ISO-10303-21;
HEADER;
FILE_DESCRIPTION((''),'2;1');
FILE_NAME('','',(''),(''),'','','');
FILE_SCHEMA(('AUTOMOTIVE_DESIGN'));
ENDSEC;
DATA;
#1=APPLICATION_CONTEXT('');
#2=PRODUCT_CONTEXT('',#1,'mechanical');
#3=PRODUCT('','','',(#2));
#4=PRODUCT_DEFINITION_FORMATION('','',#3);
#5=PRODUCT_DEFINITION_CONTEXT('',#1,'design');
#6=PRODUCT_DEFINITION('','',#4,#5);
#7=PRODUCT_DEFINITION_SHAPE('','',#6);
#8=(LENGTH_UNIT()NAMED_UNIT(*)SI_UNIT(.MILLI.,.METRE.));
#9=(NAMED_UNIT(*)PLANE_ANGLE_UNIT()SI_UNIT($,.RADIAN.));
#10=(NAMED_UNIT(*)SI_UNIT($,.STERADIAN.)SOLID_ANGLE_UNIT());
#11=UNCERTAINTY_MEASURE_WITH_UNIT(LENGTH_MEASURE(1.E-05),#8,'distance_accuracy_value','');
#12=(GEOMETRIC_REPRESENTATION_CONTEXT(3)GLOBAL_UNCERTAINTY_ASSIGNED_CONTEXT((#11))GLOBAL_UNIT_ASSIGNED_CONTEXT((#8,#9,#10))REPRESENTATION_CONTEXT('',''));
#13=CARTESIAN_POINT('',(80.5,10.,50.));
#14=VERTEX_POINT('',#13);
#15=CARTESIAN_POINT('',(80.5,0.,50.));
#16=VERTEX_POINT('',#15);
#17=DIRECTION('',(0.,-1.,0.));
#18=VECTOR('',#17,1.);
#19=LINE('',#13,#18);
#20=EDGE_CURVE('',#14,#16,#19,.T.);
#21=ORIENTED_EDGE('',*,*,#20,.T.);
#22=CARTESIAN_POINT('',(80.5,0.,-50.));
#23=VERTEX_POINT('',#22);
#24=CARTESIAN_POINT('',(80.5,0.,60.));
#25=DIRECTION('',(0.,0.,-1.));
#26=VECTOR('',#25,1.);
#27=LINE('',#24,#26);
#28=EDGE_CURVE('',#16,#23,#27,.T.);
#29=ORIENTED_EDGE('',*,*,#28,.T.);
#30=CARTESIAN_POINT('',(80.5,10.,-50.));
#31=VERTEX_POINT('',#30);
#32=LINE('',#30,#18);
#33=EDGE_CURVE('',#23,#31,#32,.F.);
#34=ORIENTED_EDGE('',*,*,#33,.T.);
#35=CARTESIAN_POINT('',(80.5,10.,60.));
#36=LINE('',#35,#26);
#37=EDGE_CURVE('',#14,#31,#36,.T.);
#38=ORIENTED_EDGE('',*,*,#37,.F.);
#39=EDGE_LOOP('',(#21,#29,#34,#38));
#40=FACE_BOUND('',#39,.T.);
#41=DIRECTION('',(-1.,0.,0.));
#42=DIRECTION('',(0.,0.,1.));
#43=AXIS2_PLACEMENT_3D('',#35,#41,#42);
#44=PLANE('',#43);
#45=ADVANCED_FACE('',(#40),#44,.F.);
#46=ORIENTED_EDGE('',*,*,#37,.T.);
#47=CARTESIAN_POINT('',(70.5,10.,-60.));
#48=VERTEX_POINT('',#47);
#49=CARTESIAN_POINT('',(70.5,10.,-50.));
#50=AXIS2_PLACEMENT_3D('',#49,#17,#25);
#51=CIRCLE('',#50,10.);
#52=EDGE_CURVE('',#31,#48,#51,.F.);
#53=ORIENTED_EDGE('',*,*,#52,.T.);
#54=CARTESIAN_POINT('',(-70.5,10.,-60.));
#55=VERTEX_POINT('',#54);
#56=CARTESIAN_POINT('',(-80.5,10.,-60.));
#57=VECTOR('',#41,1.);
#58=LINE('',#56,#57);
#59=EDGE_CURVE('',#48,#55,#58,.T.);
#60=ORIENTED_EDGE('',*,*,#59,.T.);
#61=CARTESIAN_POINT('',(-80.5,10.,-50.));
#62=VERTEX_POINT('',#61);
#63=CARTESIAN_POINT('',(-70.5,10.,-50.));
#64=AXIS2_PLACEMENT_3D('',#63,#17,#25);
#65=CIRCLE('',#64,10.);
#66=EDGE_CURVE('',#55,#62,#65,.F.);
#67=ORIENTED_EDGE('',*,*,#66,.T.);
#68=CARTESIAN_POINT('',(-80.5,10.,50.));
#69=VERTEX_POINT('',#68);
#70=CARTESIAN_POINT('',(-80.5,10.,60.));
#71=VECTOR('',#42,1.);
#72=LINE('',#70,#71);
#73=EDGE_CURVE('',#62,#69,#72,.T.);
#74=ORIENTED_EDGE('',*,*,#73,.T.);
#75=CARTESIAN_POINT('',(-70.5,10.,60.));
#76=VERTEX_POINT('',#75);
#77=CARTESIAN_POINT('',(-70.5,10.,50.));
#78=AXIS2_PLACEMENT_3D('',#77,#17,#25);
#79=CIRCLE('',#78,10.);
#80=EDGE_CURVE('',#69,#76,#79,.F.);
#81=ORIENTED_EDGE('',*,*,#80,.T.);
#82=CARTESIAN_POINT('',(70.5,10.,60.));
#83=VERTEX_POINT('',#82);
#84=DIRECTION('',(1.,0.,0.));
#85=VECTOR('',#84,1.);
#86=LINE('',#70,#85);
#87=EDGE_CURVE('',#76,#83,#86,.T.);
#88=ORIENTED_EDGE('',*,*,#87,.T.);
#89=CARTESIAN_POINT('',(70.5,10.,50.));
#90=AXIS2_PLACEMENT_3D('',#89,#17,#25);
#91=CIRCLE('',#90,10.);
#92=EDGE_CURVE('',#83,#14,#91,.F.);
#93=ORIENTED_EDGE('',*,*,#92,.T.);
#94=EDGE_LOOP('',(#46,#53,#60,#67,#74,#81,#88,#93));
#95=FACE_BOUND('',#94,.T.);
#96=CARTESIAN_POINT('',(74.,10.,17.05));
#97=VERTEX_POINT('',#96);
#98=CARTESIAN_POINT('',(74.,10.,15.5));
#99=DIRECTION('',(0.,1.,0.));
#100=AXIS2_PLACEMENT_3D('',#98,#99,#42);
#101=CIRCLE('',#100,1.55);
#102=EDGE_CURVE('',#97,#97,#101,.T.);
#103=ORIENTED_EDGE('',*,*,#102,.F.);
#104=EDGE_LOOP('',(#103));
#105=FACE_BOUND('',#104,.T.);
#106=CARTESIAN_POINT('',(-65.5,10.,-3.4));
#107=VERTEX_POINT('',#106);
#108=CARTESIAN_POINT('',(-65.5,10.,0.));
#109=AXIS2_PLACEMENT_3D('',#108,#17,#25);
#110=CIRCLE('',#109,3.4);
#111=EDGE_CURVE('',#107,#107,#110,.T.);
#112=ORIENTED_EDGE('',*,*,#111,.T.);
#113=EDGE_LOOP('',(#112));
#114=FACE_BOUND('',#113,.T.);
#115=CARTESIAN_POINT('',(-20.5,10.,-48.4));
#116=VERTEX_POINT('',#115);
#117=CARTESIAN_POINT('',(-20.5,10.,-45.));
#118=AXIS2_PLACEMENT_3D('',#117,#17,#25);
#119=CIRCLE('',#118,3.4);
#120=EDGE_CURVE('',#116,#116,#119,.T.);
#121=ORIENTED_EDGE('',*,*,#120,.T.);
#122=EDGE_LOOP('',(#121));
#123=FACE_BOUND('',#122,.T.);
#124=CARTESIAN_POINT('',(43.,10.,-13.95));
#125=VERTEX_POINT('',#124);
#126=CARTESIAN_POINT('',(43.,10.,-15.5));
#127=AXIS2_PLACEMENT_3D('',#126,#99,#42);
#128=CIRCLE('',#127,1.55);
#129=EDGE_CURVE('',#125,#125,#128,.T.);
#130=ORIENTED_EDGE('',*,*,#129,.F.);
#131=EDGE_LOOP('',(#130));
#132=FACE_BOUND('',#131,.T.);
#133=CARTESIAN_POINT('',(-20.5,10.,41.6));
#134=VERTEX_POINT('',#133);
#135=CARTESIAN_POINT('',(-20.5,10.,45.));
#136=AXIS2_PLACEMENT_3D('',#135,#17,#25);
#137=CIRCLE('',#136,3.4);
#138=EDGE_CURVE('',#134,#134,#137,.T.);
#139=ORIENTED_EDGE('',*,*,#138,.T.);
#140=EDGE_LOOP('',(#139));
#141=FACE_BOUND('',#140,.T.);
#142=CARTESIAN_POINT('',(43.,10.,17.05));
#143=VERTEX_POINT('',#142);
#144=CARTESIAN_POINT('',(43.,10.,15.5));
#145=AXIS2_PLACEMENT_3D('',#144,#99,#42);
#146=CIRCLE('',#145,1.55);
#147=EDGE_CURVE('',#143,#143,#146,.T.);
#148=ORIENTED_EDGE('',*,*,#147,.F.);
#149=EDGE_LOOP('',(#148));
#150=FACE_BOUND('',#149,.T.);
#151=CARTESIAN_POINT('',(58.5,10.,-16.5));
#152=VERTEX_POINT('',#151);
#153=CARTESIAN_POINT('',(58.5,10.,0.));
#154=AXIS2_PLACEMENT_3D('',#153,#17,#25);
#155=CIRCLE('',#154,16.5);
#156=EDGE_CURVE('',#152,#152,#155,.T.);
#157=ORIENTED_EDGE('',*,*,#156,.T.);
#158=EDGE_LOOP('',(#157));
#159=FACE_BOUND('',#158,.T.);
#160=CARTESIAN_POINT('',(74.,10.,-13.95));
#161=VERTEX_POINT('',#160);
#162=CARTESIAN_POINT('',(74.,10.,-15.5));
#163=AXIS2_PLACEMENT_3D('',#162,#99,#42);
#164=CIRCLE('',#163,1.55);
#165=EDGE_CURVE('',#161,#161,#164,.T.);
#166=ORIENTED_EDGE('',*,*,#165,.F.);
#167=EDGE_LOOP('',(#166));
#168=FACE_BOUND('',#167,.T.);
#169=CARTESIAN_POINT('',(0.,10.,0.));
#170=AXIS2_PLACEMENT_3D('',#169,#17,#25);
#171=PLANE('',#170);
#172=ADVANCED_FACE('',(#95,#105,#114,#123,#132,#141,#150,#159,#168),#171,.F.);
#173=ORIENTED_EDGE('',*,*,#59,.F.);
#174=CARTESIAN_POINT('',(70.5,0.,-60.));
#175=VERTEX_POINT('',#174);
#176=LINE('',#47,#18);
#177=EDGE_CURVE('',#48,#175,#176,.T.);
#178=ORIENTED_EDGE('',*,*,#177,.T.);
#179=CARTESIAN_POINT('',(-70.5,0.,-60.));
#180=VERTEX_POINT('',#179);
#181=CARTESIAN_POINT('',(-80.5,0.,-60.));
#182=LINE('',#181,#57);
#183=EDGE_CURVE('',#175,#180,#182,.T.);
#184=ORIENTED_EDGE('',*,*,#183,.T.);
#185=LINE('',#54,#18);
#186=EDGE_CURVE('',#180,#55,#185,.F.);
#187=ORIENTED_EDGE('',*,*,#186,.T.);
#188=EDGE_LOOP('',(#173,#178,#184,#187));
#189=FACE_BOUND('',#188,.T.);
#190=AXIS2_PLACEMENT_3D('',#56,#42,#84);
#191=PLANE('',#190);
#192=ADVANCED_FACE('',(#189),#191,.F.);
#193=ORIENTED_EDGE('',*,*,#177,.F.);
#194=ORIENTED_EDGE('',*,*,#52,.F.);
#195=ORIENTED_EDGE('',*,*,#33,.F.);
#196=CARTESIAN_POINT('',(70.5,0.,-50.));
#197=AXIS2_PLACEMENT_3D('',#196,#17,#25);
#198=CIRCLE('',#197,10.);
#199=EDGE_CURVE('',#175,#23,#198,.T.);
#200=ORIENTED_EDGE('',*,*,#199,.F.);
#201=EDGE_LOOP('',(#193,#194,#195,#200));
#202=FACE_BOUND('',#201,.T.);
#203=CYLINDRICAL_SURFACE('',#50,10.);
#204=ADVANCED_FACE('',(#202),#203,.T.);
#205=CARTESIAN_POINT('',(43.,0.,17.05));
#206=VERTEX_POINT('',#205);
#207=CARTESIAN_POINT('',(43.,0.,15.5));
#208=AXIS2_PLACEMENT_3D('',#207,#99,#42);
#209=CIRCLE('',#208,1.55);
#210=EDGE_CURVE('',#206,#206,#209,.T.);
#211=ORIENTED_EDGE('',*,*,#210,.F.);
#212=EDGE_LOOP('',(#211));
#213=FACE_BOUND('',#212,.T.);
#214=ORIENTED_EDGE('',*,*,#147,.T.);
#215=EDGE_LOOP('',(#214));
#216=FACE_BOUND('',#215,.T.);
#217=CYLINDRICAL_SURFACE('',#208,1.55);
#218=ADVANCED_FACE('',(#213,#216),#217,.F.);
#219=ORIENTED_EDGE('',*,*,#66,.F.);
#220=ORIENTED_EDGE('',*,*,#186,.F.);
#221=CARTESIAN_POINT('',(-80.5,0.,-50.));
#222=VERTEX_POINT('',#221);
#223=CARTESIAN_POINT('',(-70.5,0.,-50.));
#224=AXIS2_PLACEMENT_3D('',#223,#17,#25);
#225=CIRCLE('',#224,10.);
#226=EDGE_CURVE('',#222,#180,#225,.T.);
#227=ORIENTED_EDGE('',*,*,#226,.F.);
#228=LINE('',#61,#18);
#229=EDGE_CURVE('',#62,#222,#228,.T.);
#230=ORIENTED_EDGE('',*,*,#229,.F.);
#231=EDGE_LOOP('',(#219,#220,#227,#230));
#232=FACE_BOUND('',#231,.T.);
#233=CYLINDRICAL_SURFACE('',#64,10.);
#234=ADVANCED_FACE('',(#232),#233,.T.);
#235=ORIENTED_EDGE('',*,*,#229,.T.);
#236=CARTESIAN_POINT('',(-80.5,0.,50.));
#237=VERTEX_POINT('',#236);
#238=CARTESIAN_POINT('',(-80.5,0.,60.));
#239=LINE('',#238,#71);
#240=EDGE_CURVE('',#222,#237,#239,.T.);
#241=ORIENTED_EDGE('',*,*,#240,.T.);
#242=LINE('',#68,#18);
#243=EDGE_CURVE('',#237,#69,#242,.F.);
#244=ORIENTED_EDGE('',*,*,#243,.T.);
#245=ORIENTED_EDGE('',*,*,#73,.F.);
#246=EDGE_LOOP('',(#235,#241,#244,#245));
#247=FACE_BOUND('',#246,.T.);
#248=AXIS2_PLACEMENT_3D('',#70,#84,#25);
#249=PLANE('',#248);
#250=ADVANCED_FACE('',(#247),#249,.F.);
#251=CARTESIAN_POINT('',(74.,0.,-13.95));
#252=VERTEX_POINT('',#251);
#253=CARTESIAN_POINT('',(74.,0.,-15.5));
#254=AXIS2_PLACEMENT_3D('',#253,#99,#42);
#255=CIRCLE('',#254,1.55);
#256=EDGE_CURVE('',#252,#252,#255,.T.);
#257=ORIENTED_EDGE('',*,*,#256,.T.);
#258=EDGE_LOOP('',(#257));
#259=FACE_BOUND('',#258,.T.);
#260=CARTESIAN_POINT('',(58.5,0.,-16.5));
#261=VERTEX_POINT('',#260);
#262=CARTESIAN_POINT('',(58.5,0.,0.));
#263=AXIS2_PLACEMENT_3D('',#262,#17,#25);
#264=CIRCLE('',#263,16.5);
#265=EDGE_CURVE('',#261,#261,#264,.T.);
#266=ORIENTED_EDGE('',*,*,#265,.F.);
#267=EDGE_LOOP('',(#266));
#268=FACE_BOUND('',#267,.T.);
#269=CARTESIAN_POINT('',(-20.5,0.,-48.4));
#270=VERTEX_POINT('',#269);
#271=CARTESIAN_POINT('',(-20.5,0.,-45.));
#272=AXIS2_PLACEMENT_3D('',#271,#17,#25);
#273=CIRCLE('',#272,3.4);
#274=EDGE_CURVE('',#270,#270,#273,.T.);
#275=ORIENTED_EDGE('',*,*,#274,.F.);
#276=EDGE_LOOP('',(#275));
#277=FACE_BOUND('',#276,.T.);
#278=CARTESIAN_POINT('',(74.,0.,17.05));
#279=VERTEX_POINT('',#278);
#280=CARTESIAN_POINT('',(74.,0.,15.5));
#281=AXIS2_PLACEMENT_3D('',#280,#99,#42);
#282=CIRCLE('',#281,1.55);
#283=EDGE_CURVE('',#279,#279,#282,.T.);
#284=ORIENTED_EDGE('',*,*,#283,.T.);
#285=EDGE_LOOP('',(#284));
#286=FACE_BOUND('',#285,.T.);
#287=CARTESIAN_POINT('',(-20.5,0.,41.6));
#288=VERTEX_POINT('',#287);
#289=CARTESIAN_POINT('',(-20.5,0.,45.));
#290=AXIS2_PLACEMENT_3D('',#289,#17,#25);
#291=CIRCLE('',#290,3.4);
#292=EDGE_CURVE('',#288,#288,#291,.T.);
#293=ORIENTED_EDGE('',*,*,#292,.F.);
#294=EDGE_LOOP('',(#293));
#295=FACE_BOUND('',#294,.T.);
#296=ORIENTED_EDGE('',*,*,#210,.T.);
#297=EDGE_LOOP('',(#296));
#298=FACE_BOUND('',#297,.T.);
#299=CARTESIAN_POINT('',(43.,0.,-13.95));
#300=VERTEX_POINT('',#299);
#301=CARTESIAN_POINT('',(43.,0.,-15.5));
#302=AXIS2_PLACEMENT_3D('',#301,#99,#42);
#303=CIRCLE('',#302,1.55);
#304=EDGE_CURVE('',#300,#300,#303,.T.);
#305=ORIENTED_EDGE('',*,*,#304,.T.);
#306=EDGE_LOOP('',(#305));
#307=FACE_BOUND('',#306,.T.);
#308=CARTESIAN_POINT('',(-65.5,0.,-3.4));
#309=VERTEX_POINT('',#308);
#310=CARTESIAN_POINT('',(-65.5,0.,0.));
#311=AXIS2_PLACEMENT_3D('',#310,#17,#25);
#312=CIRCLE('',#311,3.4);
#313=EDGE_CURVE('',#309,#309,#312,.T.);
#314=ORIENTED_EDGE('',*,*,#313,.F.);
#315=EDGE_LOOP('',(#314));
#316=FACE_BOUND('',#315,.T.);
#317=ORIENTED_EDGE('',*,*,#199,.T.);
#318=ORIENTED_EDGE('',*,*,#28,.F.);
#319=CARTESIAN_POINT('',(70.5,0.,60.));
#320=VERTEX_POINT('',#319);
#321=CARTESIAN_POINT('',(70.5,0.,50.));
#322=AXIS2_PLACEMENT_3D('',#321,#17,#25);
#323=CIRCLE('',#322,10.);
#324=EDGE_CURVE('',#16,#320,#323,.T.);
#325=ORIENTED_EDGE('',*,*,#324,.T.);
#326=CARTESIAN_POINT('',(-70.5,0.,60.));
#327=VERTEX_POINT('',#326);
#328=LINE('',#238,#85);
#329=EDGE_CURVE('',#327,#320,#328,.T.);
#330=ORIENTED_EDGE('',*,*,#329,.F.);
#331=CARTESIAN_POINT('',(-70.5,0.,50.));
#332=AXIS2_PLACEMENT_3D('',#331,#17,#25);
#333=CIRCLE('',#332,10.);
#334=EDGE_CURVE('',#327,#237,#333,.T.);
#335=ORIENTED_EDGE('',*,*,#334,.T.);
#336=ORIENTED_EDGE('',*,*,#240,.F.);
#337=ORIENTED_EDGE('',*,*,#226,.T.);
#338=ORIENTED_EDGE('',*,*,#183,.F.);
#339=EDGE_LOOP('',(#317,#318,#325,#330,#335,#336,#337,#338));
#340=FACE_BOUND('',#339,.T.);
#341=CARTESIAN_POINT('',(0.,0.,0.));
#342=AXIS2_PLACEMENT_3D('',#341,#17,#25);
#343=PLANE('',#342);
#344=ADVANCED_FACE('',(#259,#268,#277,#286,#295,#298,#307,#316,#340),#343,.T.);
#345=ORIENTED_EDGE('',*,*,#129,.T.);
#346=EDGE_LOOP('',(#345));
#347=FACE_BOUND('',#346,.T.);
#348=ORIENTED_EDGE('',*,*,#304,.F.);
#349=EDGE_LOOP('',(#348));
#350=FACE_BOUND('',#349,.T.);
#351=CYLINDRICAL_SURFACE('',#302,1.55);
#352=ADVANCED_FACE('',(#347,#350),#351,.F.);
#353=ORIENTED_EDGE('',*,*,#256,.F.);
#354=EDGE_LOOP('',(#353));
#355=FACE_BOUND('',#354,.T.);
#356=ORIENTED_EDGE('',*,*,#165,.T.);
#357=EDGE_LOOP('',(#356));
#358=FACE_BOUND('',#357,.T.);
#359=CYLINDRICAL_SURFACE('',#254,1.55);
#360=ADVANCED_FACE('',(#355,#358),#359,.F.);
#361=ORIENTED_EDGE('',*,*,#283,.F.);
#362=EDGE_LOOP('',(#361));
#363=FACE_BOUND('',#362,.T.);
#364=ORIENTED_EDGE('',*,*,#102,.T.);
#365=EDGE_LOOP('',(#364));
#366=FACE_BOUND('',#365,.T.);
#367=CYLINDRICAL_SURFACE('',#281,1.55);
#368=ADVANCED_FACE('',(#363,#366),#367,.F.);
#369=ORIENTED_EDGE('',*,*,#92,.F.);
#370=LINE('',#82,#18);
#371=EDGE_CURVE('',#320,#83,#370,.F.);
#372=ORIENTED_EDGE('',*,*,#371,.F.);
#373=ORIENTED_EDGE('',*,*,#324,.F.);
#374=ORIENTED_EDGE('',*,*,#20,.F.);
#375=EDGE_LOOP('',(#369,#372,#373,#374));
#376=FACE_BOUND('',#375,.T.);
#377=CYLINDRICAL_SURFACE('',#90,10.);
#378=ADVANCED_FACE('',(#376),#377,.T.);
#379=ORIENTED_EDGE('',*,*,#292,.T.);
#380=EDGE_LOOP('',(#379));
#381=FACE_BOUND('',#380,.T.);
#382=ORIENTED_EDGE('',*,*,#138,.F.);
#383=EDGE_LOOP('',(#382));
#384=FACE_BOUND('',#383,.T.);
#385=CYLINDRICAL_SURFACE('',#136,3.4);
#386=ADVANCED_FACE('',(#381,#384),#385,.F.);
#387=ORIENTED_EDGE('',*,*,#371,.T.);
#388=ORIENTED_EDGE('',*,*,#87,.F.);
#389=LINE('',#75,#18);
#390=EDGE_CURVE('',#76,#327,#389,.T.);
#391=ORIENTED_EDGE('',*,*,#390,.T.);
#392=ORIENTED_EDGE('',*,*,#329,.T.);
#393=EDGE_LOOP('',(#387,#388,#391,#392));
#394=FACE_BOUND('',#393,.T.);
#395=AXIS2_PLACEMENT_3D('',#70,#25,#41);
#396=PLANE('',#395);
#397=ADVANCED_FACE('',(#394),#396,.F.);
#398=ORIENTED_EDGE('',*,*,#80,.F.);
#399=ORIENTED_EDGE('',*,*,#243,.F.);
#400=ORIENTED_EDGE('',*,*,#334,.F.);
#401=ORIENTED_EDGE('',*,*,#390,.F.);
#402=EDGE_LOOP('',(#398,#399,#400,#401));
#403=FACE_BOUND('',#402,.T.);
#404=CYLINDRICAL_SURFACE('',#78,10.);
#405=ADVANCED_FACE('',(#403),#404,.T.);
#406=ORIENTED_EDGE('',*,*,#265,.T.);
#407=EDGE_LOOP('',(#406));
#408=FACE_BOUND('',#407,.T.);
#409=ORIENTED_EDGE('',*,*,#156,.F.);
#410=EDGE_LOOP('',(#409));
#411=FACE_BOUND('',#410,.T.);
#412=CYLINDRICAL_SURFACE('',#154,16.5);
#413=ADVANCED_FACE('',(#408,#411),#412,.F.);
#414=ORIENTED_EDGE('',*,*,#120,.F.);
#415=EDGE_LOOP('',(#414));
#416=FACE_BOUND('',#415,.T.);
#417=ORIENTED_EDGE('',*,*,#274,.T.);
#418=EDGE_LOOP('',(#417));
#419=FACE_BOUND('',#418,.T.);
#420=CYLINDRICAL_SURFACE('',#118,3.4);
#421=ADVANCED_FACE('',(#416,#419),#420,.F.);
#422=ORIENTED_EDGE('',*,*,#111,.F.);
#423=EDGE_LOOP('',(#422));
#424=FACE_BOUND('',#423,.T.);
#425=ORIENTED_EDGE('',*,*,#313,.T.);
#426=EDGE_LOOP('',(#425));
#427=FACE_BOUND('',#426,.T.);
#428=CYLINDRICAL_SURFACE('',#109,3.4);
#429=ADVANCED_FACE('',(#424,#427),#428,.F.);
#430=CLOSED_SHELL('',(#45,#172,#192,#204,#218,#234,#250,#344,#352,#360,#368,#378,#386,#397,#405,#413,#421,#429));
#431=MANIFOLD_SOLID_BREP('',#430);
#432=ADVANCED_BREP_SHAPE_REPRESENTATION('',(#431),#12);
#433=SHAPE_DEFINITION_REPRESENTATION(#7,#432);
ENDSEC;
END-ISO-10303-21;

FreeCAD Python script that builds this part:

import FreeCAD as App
import Part
import Sketcher

V = App.Vector
Q = App.Units.Quantity


def edges_at(feature, points):
    """Names of the edges that pass closest to the given points."""
    edges = feature.Shape.Edges
    near = lambda p: min(range(len(edges)), key=lambda i: edges[i].distToShape(Part.Vertex(*p))[0])
    return sorted({f"Edge{near(p) + 1}" for p in points})


def add_polygon(sketch, points):
    """Adds a closed chain of lines whose ends are joined by coincident constraints."""
    first, n = sketch.GeometryCount, len(points)
    for a, b in zip(points, points[1:] + points[:1]):
        sketch.addGeometry(Part.LineSegment(App.Vector(*a, 0), App.Vector(*b, 0)), False)
    for i in range(n):
        sketch.addConstraint(Sketcher.Constraint("Coincident", first + i, 2, first + (i + 1) % n, 1))

doc = App.newDocument("Part")
body = doc.addObject("PartDesign::Body", "Body")

# Sketch on XZ plane
sketch1 = doc.addObject("Sketcher::SketchObject", "Sketch")
body.addObject(sketch1)
sketch1.AttachmentSupport = (doc.XZ_Plane, [""])
sketch1.MapMode = "FlatFace"
add_polygon(sketch1, [(-80, -60), (-80, 60), (80, 60), (80, -60)])  # lines 0-3
sketch1.addConstraint([
    Sketcher.Constraint("Vertical", 0),
    Sketcher.Constraint("Horizontal", 1),
    Sketcher.Constraint("Vertical", 2),
    Sketcher.Constraint("Horizontal", 3),
    Sketcher.Constraint("Symmetric", 0, 2, 2, 2, -1, 1),
    Sketcher.Constraint("DistanceX", 1, 1, 1, 2, Q("161 mm")),
    Sketcher.Constraint("DistanceY", 0, 1, 0, 2, Q("120 mm")),
])
pad1 = doc.addObject("PartDesign::Pad", "Pad")
body.addObject(pad1)
pad1.Profile = sketch1
pad1.Length = 10
pad1.Reversed = True
doc.recompute()

fillet = doc.addObject("PartDesign::Fillet", "Fillet")
body.addObject(fillet)
fillet.Base = (pad1, edges_at(pad1, [
    (80.5, 5, 60),
    (-80.5, 5, 60),
    (-80.5, 5, -60),
    (80.5, 5, -60),
]))
fillet.Radius = 10

# Sketch on XZ plane
sketch2 = doc.addObject("Sketcher::SketchObject", "Sketch001")
body.addObject(sketch2)
sketch2.AttachmentSupport = (doc.XZ_Plane, [""])
sketch2.MapMode = "FlatFace"
sketch2.AttachmentOffset = App.Placement(V(0, 0, -10), App.Rotation())
sketch2.addGeometry([
    Part.Circle(V(74, -15.5, 0), V(0, 0, 1), 1.6),
    Part.Circle(V(74, 15.5, 0), V(0, 0, 1), 1.6),
    Part.Circle(V(43, -15.5, 0), V(0, 0, 1), 1.6),
    Part.Circle(V(43, 15.5, 0), V(0, 0, 1), 1.6),
], False)
sketch2.addConstraint([
    Sketcher.Constraint("Equal", 0, 1),
    Sketcher.Constraint("Equal", 1, 2),
    Sketcher.Constraint("Equal", 2, 3),
    Sketcher.Constraint("Symmetric", 0, 3, 1, 3, -1),
    Sketcher.Constraint("Symmetric", 2, 3, 3, 3, -1),
    Sketcher.Constraint("Horizontal", 0, 3, 2, 3),
    Sketcher.Constraint("Diameter", 0, Q("3.1 mm")),
    Sketcher.Constraint("DistanceX", -1, 1, 0, 3, Q("74 mm")),
    Sketcher.Constraint("DistanceX", -1, 1, 2, 3, Q("43 mm")),
    Sketcher.Constraint("DistanceY", 0, 3, 1, 3, Q("31 mm")),
])
pocket1 = doc.addObject("PartDesign::Pocket", "Pocket")
body.addObject(pocket1)
pocket1.Profile = sketch2
pocket1.Length = 10
pocket1.Reversed = True

# Sketch on XZ plane
sketch3 = doc.addObject("Sketcher::SketchObject", "Sketch002")
body.addObject(sketch3)
sketch3.AttachmentSupport = (doc.XZ_Plane, [""])
sketch3.MapMode = "FlatFace"
sketch3.addGeometry(Part.Circle(V(58, 0, 0), V(0, 0, 1), 16), False)
sketch3.addConstraint([
    Sketcher.Constraint("PointOnObject", 0, 3, -1),
    Sketcher.Constraint("Diameter", 0, Q("33 mm")),
    Sketcher.Constraint("DistanceX", -1, 1, 0, 3, Q("58.5 mm")),
])
pocket2 = doc.addObject("PartDesign::Pocket", "Pocket001")
body.addObject(pocket2)
pocket2.Profile = sketch3
pocket2.Length = 10

# Sketch on XZ plane
sketch4 = doc.addObject("Sketcher::SketchObject", "Sketch003")
body.addObject(sketch4)
sketch4.AttachmentSupport = (doc.XZ_Plane, [""])
sketch4.MapMode = "FlatFace"
sketch4.addGeometry([
    Part.Circle(V(-20.5, 45, 0), V(0, 0, 1), 3.4),
    Part.Circle(V(-65.5, 0, 0), V(0, 0, 1), 3.4),
    Part.Circle(V(-20.5, -45, 0), V(0, 0, 1), 3.4),
], False)
sketch4.addConstraint([
    Sketcher.Constraint("Equal", 0, 1),
    Sketcher.Constraint("Equal", 1, 2),
    Sketcher.Constraint("Symmetric", 0, 3, 2, 3, -1),
    Sketcher.Constraint("PointOnObject", 1, 3, -1),
    Sketcher.Constraint("Diameter", 0, Q("6.8 mm")),
    Sketcher.Constraint("DistanceY", -1, 1, 0, 3, Q("45 mm")),
    Sketcher.Constraint("DistanceX", 1, 3, 0, 3, Q("45 mm")),
    Sketcher.Constraint("DistanceX", 0, 3, -1, 1, Q("20.5 mm")),
])
pocket3 = doc.addObject("PartDesign::Pocket", "Pocket002")
body.addObject(pocket3)
pocket3.Profile = sketch4
pocket3.Type = "ThroughAll"

doc.recompute()
